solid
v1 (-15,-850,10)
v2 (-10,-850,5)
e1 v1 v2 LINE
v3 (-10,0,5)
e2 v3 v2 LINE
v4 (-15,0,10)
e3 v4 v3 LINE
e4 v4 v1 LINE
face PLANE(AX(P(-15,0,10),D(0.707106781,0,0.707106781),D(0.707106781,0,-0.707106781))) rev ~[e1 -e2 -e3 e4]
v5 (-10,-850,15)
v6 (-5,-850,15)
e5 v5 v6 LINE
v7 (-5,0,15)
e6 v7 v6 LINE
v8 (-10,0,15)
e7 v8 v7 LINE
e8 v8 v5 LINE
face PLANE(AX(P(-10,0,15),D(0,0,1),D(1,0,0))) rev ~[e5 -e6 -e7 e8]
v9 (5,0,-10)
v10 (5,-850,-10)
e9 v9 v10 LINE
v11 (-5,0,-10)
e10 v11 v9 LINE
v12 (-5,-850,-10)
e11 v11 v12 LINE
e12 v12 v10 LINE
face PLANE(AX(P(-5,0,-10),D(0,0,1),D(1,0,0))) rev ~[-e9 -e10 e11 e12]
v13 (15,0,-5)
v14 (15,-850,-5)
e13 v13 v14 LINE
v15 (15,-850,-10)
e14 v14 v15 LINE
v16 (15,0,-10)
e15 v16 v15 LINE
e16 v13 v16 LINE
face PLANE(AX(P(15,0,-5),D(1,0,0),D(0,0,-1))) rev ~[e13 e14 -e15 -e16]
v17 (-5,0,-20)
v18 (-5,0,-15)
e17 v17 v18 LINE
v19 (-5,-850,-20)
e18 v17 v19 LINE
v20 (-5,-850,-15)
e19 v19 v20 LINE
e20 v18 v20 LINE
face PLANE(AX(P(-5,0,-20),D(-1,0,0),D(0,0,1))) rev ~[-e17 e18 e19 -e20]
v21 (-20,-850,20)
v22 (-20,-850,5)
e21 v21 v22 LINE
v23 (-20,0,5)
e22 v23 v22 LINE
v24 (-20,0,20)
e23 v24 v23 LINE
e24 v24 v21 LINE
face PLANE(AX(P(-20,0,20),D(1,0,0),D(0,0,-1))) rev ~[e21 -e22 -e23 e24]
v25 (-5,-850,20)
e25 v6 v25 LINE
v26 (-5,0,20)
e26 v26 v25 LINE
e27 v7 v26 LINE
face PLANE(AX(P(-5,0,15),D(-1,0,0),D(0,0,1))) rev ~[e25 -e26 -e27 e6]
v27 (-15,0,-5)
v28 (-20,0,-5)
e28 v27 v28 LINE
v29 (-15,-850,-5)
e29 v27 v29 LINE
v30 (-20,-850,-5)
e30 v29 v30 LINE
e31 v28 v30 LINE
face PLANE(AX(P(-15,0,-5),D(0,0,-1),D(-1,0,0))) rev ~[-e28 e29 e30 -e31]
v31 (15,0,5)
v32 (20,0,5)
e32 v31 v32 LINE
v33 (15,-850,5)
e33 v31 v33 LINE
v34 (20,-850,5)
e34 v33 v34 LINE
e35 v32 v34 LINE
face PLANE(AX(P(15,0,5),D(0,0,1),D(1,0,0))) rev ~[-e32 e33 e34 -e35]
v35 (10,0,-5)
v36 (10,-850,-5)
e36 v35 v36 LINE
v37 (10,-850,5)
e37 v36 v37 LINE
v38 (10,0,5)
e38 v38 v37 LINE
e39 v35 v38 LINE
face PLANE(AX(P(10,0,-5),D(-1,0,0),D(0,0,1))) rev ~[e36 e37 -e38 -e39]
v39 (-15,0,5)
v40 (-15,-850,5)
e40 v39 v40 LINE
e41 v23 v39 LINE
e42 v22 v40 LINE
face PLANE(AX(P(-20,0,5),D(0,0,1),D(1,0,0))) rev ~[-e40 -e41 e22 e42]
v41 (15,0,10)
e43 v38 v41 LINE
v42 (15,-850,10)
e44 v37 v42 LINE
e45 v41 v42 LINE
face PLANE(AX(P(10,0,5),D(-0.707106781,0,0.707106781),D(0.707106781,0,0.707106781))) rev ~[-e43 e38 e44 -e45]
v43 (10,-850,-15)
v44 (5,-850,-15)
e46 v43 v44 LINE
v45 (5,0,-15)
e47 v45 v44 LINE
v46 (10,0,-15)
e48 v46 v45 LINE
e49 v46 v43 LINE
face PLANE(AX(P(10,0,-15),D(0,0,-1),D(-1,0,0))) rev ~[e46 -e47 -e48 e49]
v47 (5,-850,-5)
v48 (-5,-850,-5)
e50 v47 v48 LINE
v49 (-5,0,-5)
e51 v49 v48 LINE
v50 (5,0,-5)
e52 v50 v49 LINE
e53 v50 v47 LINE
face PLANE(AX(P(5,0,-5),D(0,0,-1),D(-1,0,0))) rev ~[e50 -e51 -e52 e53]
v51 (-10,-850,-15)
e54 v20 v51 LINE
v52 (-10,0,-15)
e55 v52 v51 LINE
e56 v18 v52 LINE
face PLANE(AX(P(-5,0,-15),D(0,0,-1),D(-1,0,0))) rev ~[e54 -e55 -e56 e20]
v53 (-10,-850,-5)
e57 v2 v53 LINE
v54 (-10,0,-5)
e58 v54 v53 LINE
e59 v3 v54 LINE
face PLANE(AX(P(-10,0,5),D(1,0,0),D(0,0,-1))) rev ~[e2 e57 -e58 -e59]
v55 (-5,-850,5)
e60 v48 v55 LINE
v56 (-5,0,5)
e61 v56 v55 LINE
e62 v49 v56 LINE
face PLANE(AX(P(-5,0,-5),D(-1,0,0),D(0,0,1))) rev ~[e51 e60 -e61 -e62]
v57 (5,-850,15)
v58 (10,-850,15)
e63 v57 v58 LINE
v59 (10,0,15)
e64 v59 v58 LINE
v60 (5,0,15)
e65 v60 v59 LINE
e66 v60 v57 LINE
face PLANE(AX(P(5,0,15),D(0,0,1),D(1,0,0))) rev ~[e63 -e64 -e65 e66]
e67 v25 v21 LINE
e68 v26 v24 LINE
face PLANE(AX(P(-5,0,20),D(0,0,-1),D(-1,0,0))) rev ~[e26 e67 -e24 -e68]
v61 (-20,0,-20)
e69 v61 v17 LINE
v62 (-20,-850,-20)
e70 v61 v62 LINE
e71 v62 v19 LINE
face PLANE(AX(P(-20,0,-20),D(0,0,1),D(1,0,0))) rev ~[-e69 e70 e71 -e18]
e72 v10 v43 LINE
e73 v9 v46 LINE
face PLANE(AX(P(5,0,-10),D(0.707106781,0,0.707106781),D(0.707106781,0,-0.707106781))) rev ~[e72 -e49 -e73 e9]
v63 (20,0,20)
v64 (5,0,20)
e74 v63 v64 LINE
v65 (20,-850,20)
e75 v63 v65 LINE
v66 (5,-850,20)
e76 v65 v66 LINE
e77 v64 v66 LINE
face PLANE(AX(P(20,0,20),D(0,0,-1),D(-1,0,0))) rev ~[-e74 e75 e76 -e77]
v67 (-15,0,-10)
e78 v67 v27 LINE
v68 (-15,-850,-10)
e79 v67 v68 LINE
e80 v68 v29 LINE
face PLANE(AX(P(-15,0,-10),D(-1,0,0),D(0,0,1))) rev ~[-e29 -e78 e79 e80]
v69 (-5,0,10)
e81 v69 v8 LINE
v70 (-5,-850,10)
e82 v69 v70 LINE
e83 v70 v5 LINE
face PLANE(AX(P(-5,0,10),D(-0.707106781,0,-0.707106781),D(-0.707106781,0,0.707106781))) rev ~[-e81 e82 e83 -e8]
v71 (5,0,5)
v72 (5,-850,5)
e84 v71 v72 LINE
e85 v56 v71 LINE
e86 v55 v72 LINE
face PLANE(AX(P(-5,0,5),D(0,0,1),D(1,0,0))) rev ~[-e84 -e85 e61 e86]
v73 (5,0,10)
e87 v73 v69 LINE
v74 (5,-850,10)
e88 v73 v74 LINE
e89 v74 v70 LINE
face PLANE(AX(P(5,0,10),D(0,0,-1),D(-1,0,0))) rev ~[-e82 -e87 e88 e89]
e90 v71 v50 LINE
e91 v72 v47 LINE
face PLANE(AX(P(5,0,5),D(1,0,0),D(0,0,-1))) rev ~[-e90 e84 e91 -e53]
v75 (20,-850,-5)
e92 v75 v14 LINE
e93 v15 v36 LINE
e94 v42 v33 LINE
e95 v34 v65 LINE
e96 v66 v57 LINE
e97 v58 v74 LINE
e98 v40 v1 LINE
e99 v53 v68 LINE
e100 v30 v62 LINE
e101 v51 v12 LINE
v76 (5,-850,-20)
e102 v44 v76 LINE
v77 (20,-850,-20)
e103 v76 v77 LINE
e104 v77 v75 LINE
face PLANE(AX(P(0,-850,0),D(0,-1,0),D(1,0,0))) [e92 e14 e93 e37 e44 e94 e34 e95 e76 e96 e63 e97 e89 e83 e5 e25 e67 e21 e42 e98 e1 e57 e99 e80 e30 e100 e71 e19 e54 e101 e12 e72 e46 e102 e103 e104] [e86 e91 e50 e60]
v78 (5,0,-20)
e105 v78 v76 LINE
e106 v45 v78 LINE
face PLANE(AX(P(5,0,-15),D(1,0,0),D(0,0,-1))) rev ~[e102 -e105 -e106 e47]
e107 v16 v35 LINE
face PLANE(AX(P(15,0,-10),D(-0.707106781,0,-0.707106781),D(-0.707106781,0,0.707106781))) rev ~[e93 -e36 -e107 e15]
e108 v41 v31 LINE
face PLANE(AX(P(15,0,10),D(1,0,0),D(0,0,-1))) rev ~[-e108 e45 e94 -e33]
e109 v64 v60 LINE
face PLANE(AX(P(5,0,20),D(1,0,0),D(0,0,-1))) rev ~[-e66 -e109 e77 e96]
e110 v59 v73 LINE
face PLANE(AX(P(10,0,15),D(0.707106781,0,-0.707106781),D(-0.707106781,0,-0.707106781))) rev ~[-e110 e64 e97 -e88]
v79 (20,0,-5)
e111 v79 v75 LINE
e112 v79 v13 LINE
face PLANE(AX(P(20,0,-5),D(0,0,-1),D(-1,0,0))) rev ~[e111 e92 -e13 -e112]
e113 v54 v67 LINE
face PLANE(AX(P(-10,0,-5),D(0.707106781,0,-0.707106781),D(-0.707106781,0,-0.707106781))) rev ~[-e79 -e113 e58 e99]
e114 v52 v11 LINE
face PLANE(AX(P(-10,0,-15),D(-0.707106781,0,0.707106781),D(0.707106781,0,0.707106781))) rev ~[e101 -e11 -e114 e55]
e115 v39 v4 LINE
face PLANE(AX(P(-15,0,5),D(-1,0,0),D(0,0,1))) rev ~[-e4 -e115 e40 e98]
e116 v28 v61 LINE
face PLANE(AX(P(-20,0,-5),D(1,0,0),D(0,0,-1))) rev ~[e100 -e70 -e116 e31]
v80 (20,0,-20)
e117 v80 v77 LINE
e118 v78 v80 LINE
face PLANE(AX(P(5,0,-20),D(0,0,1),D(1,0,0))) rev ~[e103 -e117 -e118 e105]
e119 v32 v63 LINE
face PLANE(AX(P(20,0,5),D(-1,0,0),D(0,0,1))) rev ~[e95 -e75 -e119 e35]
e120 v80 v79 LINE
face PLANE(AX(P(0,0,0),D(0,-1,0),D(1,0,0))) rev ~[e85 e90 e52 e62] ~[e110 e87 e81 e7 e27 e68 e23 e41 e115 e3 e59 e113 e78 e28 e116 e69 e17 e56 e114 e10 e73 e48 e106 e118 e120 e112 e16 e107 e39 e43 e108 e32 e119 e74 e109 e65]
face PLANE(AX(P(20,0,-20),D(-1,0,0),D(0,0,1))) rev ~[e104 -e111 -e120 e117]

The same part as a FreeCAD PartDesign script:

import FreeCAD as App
import Part
import Sketcher
Q = App.Units.Quantity

doc = App.newDocument("Part")
body = doc.addObject("PartDesign::Body", "Body")

sketch1 = body.newObject("Sketcher::SketchObject", "Sketch")
sketch1.AttachmentSupport = (doc.getObject("XZ_Plane"), [""])
sketch1.MapMode = "FlatFace"
sketch1.addGeometry([
    Part.LineSegment(App.Vector(20, 5, 0), App.Vector(20, 20, 0)),
    Part.LineSegment(App.Vector(20, 20, 0), App.Vector(5, 20, 0)),
    Part.LineSegment(App.Vector(5, 20, 0), App.Vector(5, 15, 0)),
    Part.LineSegment(App.Vector(5, 15, 0), App.Vector(10, 15, 0)),
    Part.LineSegment(App.Vector(10, 15, 0), App.Vector(5, 10, 0)),
    Part.LineSegment(App.Vector(5, 10, 0), App.Vector(-5, 10, 0)),
    Part.LineSegment(App.Vector(-5, 10, 0), App.Vector(-10, 15, 0)),
    Part.LineSegment(App.Vector(-10, 15, 0), App.Vector(-5, 15, 0)),
    Part.LineSegment(App.Vector(-5, 15, 0), App.Vector(-5, 20, 0)),
    Part.LineSegment(App.Vector(-5, 20, 0), App.Vector(-20, 20, 0)),
    Part.LineSegment(App.Vector(-20, 20, 0), App.Vector(-20, 5, 0)),
    Part.LineSegment(App.Vector(-20, 5, 0), App.Vector(-15, 5, 0)),
    Part.LineSegment(App.Vector(-15, 5, 0), App.Vector(-15, 10, 0)),
    Part.LineSegment(App.Vector(-15, 10, 0), App.Vector(-10, 5, 0)),
    Part.LineSegment(App.Vector(-10, 5, 0), App.Vector(-10, -5, 0)),
    Part.LineSegment(App.Vector(-10, -5, 0), App.Vector(-15, -10, 0)),
    Part.LineSegment(App.Vector(-15, -10, 0), App.Vector(-15, -5, 0)),
    Part.LineSegment(App.Vector(-15, -5, 0), App.Vector(-20, -5, 0)),
    Part.LineSegment(App.Vector(-20, -5, 0), App.Vector(-20, -20, 0)),
    Part.LineSegment(App.Vector(-20, -20, 0), App.Vector(-5, -20, 0)),
    Part.LineSegment(App.Vector(-5, -20, 0), App.Vector(-5, -15, 0)),
    Part.LineSegment(App.Vector(-5, -15, 0), App.Vector(-10, -15, 0)),
    Part.LineSegment(App.Vector(-10, -15, 0), App.Vector(-5, -10, 0)),
    Part.LineSegment(App.Vector(-5, -10, 0), App.Vector(5, -10, 0)),
    Part.LineSegment(App.Vector(5, -10, 0), App.Vector(10, -15, 0)),
    Part.LineSegment(App.Vector(10, -15, 0), App.Vector(5, -15, 0)),
    Part.LineSegment(App.Vector(5, -15, 0), App.Vector(5, -20, 0)),
    Part.LineSegment(App.Vector(5, -20, 0), App.Vector(20, -20, 0)),
    Part.LineSegment(App.Vector(20, -20, 0), App.Vector(20, -5, 0)),
    Part.LineSegment(App.Vector(20, -5, 0), App.Vector(15, -5, 0)),
    Part.LineSegment(App.Vector(15, -5, 0), App.Vector(15, -10, 0)),
    Part.LineSegment(App.Vector(15, -10, 0), App.Vector(10, -5, 0)),
    Part.LineSegment(App.Vector(10, -5, 0), App.Vector(10, 5, 0)),
    Part.LineSegment(App.Vector(10, 5, 0), App.Vector(15, 10, 0)),
    Part.LineSegment(App.Vector(15, 10, 0), App.Vector(15, 5, 0)),
    Part.LineSegment(App.Vector(15, 5, 0), App.Vector(20, 5, 0)),
    Part.LineSegment(App.Vector(-5, -5, 0), App.Vector(-5, 5, 0)),
    Part.LineSegment(App.Vector(-5, 5, 0), App.Vector(5, 5, 0)),
    Part.LineSegment(App.Vector(5, 5, 0), App.Vector(5, -5, 0)),
    Part.LineSegment(App.Vector(5, -5, 0), App.Vector(-5, -5, 0)),
], False)
sketch1.addConstraint([
    Sketcher.Constraint("Coincident", 0, 2, 1, 1),
    Sketcher.Constraint("Coincident", 1, 2, 2, 1),
    Sketcher.Constraint("Coincident", 2, 2, 3, 1),
    Sketcher.Constraint("Coincident", 3, 2, 4, 1),
    Sketcher.Constraint("Coincident", 4, 2, 5, 1),
    Sketcher.Constraint("Coincident", 5, 2, 6, 1),
    Sketcher.Constraint("Coincident", 6, 2, 7, 1),
    Sketcher.Constraint("Coincident", 7, 2, 8, 1),
    Sketcher.Constraint("Coincident", 8, 2, 9, 1),
    Sketcher.Constraint("Coincident", 9, 2, 10, 1),
    Sketcher.Constraint("Coincident", 10, 2, 11, 1),
    Sketcher.Constraint("Coincident", 11, 2, 12, 1),
    Sketcher.Constraint("Coincident", 12, 2, 13, 1),
    Sketcher.Constraint("Coincident", 13, 2, 14, 1),
    Sketcher.Constraint("Coincident", 14, 2, 15, 1),
    Sketcher.Constraint("Coincident", 15, 2, 16, 1),
    Sketcher.Constraint("Coincident", 16, 2, 17, 1),
    Sketcher.Constraint("Coincident", 17, 2, 18, 1),
    Sketcher.Constraint("Coincident", 18, 2, 19, 1),
    Sketcher.Constraint("Coincident", 19, 2, 20, 1),
    Sketcher.Constraint("Coincident", 20, 2, 21, 1),
    Sketcher.Constraint("Coincident", 21, 2, 22, 1),
    Sketcher.Constraint("Coincident", 22, 2, 23, 1),
    Sketcher.Constraint("Coincident", 23, 2, 24, 1),
    Sketcher.Constraint("Coincident", 24, 2, 25, 1),
    Sketcher.Constraint("Coincident", 25, 2, 26, 1),
    Sketcher.Constraint("Coincident", 26, 2, 27, 1),
    Sketcher.Constraint("Coincident", 27, 2, 28, 1),
    Sketcher.Constraint("Coincident", 28, 2, 29, 1),
    Sketcher.Constraint("Coincident", 29, 2, 30, 1),
    Sketcher.Constraint("Coincident", 30, 2, 31, 1),
    Sketcher.Constraint("Coincident", 31, 2, 32, 1),
    Sketcher.Constraint("Coincident", 32, 2, 33, 1),
    Sketcher.Constraint("Coincident", 33, 2, 34, 1),
    Sketcher.Constraint("Coincident", 34, 2, 35, 1),
    Sketcher.Constraint("Coincident", 35, 2, 0, 1),
    Sketcher.Constraint("Coincident", 36, 2, 37, 1),
    Sketcher.Constraint("Coincident", 37, 2, 38, 1),
    Sketcher.Constraint("Coincident", 38, 2, 39, 1),
    Sketcher.Constraint("Coincident", 39, 2, 36, 1),
    Sketcher.Constraint("Vertical", 0),
    Sketcher.Constraint("Horizontal", 1),
    Sketcher.Constraint("Vertical", 2),
    Sketcher.Constraint("Horizontal", 3),
    Sketcher.Constraint("Horizontal", 5),
    Sketcher.Constraint("Horizontal", 7),
    Sketcher.Constraint("Vertical", 8),
    Sketcher.Constraint("Horizontal", 9),
    Sketcher.Constraint("Vertical", 10),
    Sketcher.Constraint("Horizontal", 11),
    Sketcher.Constraint("Vertical", 12),
    Sketcher.Constraint("Vertical", 14),
    Sketcher.Constraint("Vertical", 16),
    Sketcher.Constraint("Horizontal", 17),
    Sketcher.Constraint("Vertical", 18),
    Sketcher.Constraint("Horizontal", 19),
    Sketcher.Constraint("Vertical", 20),
    Sketcher.Constraint("Horizontal", 21),
    Sketcher.Constraint("Horizontal", 23),
    Sketcher.Constraint("Horizontal", 25),
    Sketcher.Constraint("Vertical", 26),
    Sketcher.Constraint("Horizontal", 27),
    Sketcher.Constraint("Vertical", 28),
    Sketcher.Constraint("Horizontal", 29),
    Sketcher.Constraint("Vertical", 30),
    Sketcher.Constraint("Vertical", 32),
    Sketcher.Constraint("Vertical", 34),
    Sketcher.Constraint("Horizontal", 35),
    Sketcher.Constraint("Vertical", 36),
    Sketcher.Constraint("Horizontal", 37),
    Sketcher.Constraint("Vertical", 38),
    Sketcher.Constraint("Horizontal", 39),
    Sketcher.Constraint("Symmetric", 0, 2, 18, 2, -1, 1),
    Sketcher.Constraint("Symmetric", 2, 2, 20, 2, -1, 1),
    Sketcher.Constraint("Symmetric", 4, 2, 22, 2, -1, 1),
    Sketcher.Constraint("Symmetric", 6, 2, 24, 2, -1, 1),
    Sketcher.Constraint("Symmetric", 8, 2, 26, 2, -1, 1),
    Sketcher.Constraint("Symmetric", 10, 2, 28, 2, -1, 1),
    Sketcher.Constraint("Symmetric", 12, 2, 30, 2, -1, 1),
    Sketcher.Constraint("Symmetric", 13, 2, 31, 2, -1, 1),
    Sketcher.Constraint("Symmetric", 15, 2, 33, 2, -1, 1),
    Sketcher.Constraint("Symmetric", 36, 2, 38, 2, -1, 1),
    Sketcher.Constraint("Symmetric", 3, 2, 6, 2, -2),
    Sketcher.Constraint("Symmetric", 1, 2, 8, 2, -2),
    Sketcher.Constraint("Symmetric", 17, 2, 28, 2, -2),
    Sketcher.Constraint("Symmetric", 15, 2, 30, 2, -2),
    Sketcher.Constraint("Perpendicular", 4, 6),
    Sketcher.Constraint("Parallel", 6, 13),
    Sketcher.Constraint("Perpendicular", 13, 15),
    Sketcher.Constraint("Parallel", 15, 22),
    Sketcher.Constraint("Perpendicular", 22, 24),
    Sketcher.Constraint("Perpendicular", 31, 33),
    Sketcher.Constraint("Horizontal", 5, 2, 12, 2),
    Sketcher.Constraint("Horizontal", 11, 2, 13, 2),
    Sketcher.Constraint("Horizontal", 14, 2, 16, 2),
    Sketcher.Constraint("Horizontal", 32, 2, 34, 2),
    Sketcher.Constraint("Horizontal", 35, 2, 36, 2),
    Sketcher.Constraint("Vertical", 2, 2, 4, 2),
    Sketcher.Constraint("Vertical", 6, 2, 13, 2),
    Sketcher.Constraint("Vertical", 22, 2, 36, 2),
    Sketcher.Constraint("Equal", 7, 11),
    Sketcher.Constraint("Equal", 27, 0),
    Sketcher.Constraint("Equal", 8, 12),
    Sketcher.Constraint("Equal", 39, 14),
    Sketcher.Constraint("DistanceX", 1, 2, 1, 1, Q("15 mm")),
    Sketcher.Constraint("DistanceX", 5, 2, 5, 1, Q("10 mm")),
])
pad1 = body.newObject("PartDesign::Pad", "Pad")
pad1.Profile = sketch1
pad1.Length = 850

doc.recompute()
